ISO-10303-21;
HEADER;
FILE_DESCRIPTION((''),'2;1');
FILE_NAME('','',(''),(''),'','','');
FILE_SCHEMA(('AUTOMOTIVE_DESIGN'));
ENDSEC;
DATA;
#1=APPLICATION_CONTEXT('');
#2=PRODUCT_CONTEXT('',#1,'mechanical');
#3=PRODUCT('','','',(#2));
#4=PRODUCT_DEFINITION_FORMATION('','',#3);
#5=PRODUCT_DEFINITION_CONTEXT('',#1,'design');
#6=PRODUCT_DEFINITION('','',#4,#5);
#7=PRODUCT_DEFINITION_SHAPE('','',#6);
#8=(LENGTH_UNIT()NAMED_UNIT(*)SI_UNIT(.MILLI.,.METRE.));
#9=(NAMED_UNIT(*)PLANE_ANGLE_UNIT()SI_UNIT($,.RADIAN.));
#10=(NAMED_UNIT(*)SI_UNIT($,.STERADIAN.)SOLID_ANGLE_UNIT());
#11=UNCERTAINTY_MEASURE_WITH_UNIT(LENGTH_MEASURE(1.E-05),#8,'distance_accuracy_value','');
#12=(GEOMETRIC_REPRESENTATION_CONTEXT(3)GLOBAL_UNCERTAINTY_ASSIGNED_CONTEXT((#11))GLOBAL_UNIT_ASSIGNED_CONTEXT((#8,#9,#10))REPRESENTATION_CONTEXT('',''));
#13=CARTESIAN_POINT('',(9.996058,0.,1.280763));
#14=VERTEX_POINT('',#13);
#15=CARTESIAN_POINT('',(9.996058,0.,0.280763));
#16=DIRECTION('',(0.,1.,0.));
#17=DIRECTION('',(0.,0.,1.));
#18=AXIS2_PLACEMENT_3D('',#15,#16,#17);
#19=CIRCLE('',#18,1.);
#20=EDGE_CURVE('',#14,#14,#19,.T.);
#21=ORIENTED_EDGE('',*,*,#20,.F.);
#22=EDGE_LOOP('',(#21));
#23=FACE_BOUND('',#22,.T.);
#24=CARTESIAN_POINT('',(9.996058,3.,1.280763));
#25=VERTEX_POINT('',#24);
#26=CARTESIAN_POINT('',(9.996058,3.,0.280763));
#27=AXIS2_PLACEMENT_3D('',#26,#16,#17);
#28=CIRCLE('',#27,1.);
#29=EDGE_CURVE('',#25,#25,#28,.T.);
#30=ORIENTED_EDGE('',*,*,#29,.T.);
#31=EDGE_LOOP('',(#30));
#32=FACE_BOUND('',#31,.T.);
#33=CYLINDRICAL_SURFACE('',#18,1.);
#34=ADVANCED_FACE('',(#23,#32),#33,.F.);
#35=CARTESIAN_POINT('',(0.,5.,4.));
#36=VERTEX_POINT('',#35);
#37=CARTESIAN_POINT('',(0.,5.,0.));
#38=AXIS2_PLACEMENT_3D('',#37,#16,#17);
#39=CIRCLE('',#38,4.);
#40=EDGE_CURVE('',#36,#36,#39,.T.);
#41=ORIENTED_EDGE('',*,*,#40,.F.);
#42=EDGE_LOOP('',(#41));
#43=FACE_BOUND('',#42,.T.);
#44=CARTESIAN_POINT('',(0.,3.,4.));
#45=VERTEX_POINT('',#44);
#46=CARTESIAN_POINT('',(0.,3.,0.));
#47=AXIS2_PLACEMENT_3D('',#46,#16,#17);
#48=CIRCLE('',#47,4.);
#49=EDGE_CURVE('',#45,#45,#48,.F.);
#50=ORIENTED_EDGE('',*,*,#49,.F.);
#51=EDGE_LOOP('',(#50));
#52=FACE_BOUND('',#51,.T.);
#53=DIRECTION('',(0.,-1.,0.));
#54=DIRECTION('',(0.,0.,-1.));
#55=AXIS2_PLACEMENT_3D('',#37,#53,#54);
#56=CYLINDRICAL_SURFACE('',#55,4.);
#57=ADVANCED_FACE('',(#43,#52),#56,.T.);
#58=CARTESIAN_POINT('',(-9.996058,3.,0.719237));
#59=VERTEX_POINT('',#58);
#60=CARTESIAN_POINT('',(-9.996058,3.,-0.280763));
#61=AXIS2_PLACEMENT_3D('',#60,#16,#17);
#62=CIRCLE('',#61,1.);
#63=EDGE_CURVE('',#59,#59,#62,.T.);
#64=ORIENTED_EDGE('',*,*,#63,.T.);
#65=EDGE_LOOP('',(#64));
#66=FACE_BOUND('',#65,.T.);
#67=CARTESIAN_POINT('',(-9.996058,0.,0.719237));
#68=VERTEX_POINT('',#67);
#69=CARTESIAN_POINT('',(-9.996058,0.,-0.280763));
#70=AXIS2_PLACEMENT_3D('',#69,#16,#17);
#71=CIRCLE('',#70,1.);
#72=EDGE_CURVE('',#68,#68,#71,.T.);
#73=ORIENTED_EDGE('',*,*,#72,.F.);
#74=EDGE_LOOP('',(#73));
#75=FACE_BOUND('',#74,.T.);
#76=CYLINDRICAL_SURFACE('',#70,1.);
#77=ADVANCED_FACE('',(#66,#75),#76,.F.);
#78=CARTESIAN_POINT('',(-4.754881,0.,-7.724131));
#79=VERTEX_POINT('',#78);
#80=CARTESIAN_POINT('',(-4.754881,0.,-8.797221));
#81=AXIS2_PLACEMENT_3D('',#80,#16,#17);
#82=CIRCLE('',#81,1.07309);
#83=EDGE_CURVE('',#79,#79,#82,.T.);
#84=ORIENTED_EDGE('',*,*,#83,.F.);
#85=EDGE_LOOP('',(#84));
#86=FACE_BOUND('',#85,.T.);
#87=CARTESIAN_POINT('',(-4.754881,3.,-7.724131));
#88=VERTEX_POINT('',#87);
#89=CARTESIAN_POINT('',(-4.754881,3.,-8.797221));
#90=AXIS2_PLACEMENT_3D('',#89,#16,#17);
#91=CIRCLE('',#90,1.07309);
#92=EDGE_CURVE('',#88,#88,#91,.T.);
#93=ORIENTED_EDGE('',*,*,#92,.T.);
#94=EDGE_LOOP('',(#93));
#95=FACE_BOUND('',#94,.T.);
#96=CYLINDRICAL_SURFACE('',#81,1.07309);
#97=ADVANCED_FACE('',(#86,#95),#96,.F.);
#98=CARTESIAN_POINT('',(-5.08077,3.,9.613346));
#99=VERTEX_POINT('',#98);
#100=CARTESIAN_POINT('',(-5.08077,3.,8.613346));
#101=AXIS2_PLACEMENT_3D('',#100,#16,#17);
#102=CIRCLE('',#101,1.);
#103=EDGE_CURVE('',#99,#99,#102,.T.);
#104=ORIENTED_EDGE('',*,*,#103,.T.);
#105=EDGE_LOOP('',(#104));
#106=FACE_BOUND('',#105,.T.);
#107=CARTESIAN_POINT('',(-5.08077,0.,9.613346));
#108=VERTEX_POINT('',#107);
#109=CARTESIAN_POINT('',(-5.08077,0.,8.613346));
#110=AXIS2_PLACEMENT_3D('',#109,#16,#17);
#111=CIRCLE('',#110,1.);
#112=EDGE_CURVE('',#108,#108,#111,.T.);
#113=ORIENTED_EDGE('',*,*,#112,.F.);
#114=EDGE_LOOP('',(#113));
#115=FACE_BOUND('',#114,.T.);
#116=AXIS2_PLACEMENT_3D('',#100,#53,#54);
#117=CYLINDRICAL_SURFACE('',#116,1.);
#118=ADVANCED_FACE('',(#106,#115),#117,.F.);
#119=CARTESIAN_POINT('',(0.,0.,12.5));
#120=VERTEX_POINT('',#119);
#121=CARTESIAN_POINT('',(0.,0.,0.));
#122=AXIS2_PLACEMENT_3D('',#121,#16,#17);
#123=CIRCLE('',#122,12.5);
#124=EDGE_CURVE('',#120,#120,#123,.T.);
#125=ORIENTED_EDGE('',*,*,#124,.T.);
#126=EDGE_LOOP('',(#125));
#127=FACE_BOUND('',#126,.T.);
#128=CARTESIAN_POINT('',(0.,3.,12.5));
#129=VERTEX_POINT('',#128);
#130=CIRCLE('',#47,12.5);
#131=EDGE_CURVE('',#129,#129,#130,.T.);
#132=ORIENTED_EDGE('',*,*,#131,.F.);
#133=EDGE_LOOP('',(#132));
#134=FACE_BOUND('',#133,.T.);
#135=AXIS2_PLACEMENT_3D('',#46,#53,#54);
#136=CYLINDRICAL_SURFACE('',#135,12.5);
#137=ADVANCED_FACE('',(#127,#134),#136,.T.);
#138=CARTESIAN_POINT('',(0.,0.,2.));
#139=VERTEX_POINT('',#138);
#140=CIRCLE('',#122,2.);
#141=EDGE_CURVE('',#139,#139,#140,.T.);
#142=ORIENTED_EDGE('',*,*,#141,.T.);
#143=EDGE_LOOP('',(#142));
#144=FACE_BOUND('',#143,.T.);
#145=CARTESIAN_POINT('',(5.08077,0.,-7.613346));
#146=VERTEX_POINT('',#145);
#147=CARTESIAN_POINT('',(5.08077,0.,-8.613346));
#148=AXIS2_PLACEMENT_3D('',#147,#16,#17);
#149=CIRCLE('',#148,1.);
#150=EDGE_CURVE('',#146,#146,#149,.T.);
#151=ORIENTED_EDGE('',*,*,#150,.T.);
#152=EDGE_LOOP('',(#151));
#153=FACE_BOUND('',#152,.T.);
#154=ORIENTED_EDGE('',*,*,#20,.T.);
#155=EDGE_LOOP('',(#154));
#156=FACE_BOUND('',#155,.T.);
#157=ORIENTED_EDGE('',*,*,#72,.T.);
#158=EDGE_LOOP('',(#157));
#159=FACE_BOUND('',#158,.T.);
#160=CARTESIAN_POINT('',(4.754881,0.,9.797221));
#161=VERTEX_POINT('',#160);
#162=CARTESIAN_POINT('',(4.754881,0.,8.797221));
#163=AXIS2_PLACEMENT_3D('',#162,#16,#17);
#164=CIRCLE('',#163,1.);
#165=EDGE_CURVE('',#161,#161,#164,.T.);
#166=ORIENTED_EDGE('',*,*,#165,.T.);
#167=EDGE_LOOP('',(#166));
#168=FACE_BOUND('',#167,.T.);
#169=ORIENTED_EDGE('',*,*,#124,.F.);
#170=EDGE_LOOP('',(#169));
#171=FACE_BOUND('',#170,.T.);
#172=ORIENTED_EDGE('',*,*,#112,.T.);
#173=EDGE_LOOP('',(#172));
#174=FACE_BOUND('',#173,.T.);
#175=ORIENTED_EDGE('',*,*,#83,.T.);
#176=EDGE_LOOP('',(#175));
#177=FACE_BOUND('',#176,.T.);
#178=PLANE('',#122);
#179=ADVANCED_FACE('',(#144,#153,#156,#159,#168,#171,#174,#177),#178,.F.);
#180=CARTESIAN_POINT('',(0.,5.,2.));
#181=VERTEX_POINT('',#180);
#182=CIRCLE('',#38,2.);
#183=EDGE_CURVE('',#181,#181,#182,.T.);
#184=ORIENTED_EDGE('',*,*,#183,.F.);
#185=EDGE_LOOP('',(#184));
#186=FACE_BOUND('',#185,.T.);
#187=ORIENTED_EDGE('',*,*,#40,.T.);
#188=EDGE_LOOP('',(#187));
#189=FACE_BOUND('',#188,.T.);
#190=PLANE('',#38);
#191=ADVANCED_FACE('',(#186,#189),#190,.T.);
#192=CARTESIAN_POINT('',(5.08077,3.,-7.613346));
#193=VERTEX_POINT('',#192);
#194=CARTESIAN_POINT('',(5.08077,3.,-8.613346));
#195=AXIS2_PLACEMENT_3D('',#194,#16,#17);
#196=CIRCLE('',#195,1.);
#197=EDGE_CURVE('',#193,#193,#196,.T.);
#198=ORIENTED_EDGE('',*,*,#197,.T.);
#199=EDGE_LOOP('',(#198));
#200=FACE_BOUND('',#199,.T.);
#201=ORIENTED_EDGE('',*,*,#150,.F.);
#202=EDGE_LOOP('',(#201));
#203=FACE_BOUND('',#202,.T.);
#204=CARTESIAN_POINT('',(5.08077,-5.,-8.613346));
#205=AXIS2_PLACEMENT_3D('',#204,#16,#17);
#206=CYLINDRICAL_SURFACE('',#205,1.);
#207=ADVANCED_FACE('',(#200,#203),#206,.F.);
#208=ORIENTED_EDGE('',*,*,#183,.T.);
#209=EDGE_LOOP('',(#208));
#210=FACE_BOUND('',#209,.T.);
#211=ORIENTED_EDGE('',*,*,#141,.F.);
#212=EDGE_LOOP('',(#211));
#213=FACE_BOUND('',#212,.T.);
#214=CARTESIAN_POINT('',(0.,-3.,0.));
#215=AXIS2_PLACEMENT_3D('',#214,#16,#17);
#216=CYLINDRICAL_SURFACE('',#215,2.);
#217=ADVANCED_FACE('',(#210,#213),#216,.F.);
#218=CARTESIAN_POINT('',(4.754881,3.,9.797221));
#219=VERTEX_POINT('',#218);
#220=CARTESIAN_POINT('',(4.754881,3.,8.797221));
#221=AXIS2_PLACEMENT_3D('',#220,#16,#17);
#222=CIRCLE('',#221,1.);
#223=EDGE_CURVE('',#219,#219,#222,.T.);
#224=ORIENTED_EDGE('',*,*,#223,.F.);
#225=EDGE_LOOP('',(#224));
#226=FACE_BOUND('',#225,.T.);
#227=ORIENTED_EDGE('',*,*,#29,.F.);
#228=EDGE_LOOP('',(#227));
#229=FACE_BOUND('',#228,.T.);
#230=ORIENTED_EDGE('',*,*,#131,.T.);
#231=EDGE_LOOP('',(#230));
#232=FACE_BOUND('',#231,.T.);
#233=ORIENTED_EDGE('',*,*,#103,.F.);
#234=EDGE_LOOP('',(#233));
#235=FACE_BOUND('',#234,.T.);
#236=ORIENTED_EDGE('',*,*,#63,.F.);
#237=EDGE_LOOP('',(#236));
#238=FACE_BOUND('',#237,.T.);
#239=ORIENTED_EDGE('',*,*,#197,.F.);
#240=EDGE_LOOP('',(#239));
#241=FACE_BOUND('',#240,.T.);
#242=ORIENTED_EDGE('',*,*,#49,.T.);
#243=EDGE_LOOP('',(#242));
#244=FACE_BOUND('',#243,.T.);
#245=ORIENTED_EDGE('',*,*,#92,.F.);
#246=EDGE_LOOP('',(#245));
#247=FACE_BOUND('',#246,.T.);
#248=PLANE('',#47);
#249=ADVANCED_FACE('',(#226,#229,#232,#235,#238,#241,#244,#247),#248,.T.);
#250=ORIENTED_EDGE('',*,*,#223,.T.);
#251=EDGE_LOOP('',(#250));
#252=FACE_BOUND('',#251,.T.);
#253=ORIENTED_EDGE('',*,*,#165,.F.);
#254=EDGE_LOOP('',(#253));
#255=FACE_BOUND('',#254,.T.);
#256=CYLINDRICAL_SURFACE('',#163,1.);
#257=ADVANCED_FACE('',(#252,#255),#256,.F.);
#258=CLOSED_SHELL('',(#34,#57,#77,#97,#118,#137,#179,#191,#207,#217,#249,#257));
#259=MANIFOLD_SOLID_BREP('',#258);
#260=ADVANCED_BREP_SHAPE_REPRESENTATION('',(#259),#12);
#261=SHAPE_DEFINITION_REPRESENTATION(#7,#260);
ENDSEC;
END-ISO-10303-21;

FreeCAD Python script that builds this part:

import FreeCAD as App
import Part
import Sketcher

V = App.Vector
Q = App.Units.Quantity

doc = App.newDocument("Part")
body = doc.addObject("PartDesign::Body", "Body")

sketch1 = doc.addObject("Sketcher::SketchObject", "Sketch")
body.addObject(sketch1)
sketch1.AttachmentSupport = (doc.XZ_Plane, [""])
sketch1.MapMode = "FlatFace"
sketch1.addGeometry(Part.Circle(V(0, 0, 0), V(0, 0, 1), 12), False)
sketch1.addConstraint(Sketcher.Constraint("Coincident", 0, 3, -1, 1))
sketch1.addConstraint(Sketcher.Constraint("Diameter", 0, Q("25 mm")))
pad1 = doc.addObject("PartDesign::Pad", "Pad")
body.addObject(pad1)
pad1.Profile = sketch1
pad1.Length = 3
pad1.Reversed = True

sketch2 = doc.addObject("Sketcher::SketchObject", "Sketch001")
body.addObject(sketch2)
sketch2.AttachmentSupport = (doc.XZ_Plane, [""])
sketch2.MapMode = "FlatFace"
sketch2.addGeometry(Part.Circle(V(0, 0, 0), V(0, 0, 1), 4), False)
sketch2.addConstraint(Sketcher.Constraint("Coincident", 0, 3, -1, 1))
sketch2.addConstraint(Sketcher.Constraint("Diameter", 0, Q("8 mm")))
pad2 = doc.addObject("PartDesign::Pad", "Pad001")
body.addObject(pad2)
pad2.Profile = sketch2
pad2.Length = 5
pad2.Reversed = True

sketch3 = doc.addObject("Sketcher::SketchObject", "Sketch002")
body.addObject(sketch3)
sketch3.AttachmentSupport = (doc.XZ_Plane, [""])
sketch3.MapMode = "FlatFace"
sketch3.AttachmentOffset = App.Placement(V(0, 0, -5), App.Rotation())
sketch3.addGeometry(Part.Circle(V(0, 0, 0), V(0, 0, 1), 2), False)
sketch3.addConstraint(Sketcher.Constraint("Coincident", 0, 3, -1, 1))
sketch3.addConstraint(Sketcher.Constraint("Diameter", 0, Q("4 mm")))
pocket1 = doc.addObject("PartDesign::Pocket", "Pocket")
body.addObject(pocket1)
pocket1.Profile = sketch3
pocket1.Length = 8
pocket1.Reversed = True

sketch4 = doc.addObject("Sketcher::SketchObject", "Sketch003")
body.addObject(sketch4)
sketch4.AttachmentSupport = (doc.XZ_Plane, [""])
sketch4.MapMode = "FlatFace"
sketch4.AttachmentOffset = App.Placement(V(0, 0, -3), App.Rotation())
sketch4.addGeometry(Part.Circle(V(5.1, -8.6, 0), V(0, 0, 1), 1), False)
sketch4.addConstraint(Sketcher.Constraint("Diameter", 0, Q("2 mm")))
sketch4.addConstraint(Sketcher.Constraint("DistanceX", -1, 1, 0, 3, Q("5.08077 mm")))
sketch4.addConstraint(Sketcher.Constraint("DistanceY", 0, 3, -1, 1, Q("8.613346 mm")))
pocket2 = doc.addObject("PartDesign::Pocket", "Pocket001")
body.addObject(pocket2)
pocket2.Profile = sketch4
pocket2.Length = 8
pocket2.Reversed = True

sketch5 = doc.addObject("Sketcher::SketchObject", "Sketch004")
body.addObject(sketch5)
sketch5.AttachmentSupport = (doc.XZ_Plane, [""])
sketch5.MapMode = "FlatFace"
sketch5.addGeometry(Part.Circle(V(-5.1, 8.6, 0), V(0, 0, 1), 1), False)
sketch5.addConstraint(Sketcher.Constraint("Diameter", 0, Q("2 mm")))
sketch5.addConstraint(Sketcher.Constraint("DistanceX", 0, 3, -1, 1, Q("5.08077 mm")))
sketch5.addConstraint(Sketcher.Constraint("DistanceY", -1, 1, 0, 3, Q("8.613346 mm")))
pocket3 = doc.addObject("PartDesign::Pocket", "Pocket002")
body.addObject(pocket3)
pocket3.Profile = sketch5
pocket3.Length = 3

sketch6 = doc.addObject("Sketcher::SketchObject", "Sketch005")
body.addObject(sketch6)
sketch6.AttachmentSupport = (doc.XZ_Plane, [""])
sketch6.MapMode = "FlatFace"
sketch6.AttachmentOffset = App.Placement(V(0, 0, -3), App.Rotation())
sketch6.addGeometry(Part.Circle(V(-4.8, -8.8, 0), V(0, 0, 1), 1.1), False)
sketch6.addGeometry(Part.Circle(V(-10, -0.3, 0), V(0, 0, 1), 1), False)
sketch6.addGeometry(Part.Circle(V(4.8, 8.8, 0), V(0, 0, 1), 1), False)
sketch6.addGeometry(Part.Circle(V(10, 0.3, 0), V(0, 0, 1), 1), False)
sketch6.addConstraint(Sketcher.Constraint("Equal", 1, 2))
sketch6.addConstraint(Sketcher.Constraint("Equal", 2, 3))
sketch6.addConstraint(Sketcher.Constraint("Symmetric", 0, 3, 2, 3, -1, 1))
sketch6.addConstraint(Sketcher.Constraint("Symmetric", 1, 3, 3, 3, -1, 1))
sketch6.addConstraint(Sketcher.Constraint("Diameter", 1, Q("2 mm")))
sketch6.addConstraint(Sketcher.Constraint("Diameter", 0, Q("2.14618 mm")))
sketch6.addConstraint(Sketcher.Constraint("DistanceX", 0, 3, -1, 1, Q("4.754881 mm")))
sketch6.addConstraint(Sketcher.Constraint("DistanceY", 0, 3, -1, 1, Q("8.797221 mm")))
sketch6.addConstraint(Sketcher.Constraint("DistanceY", 0, 3, 1, 3, Q("8.516459 mm")))
sketch6.addConstraint(Sketcher.Constraint("DistanceX", 1, 3, 2, 3, Q("14.750939 mm")))
pocket4 = doc.addObject("PartDesign::Pocket", "Pocket003")
body.addObject(pocket4)
pocket4.Profile = sketch6
pocket4.Length = 3
pocket4.Reversed = True

doc.recompute()
